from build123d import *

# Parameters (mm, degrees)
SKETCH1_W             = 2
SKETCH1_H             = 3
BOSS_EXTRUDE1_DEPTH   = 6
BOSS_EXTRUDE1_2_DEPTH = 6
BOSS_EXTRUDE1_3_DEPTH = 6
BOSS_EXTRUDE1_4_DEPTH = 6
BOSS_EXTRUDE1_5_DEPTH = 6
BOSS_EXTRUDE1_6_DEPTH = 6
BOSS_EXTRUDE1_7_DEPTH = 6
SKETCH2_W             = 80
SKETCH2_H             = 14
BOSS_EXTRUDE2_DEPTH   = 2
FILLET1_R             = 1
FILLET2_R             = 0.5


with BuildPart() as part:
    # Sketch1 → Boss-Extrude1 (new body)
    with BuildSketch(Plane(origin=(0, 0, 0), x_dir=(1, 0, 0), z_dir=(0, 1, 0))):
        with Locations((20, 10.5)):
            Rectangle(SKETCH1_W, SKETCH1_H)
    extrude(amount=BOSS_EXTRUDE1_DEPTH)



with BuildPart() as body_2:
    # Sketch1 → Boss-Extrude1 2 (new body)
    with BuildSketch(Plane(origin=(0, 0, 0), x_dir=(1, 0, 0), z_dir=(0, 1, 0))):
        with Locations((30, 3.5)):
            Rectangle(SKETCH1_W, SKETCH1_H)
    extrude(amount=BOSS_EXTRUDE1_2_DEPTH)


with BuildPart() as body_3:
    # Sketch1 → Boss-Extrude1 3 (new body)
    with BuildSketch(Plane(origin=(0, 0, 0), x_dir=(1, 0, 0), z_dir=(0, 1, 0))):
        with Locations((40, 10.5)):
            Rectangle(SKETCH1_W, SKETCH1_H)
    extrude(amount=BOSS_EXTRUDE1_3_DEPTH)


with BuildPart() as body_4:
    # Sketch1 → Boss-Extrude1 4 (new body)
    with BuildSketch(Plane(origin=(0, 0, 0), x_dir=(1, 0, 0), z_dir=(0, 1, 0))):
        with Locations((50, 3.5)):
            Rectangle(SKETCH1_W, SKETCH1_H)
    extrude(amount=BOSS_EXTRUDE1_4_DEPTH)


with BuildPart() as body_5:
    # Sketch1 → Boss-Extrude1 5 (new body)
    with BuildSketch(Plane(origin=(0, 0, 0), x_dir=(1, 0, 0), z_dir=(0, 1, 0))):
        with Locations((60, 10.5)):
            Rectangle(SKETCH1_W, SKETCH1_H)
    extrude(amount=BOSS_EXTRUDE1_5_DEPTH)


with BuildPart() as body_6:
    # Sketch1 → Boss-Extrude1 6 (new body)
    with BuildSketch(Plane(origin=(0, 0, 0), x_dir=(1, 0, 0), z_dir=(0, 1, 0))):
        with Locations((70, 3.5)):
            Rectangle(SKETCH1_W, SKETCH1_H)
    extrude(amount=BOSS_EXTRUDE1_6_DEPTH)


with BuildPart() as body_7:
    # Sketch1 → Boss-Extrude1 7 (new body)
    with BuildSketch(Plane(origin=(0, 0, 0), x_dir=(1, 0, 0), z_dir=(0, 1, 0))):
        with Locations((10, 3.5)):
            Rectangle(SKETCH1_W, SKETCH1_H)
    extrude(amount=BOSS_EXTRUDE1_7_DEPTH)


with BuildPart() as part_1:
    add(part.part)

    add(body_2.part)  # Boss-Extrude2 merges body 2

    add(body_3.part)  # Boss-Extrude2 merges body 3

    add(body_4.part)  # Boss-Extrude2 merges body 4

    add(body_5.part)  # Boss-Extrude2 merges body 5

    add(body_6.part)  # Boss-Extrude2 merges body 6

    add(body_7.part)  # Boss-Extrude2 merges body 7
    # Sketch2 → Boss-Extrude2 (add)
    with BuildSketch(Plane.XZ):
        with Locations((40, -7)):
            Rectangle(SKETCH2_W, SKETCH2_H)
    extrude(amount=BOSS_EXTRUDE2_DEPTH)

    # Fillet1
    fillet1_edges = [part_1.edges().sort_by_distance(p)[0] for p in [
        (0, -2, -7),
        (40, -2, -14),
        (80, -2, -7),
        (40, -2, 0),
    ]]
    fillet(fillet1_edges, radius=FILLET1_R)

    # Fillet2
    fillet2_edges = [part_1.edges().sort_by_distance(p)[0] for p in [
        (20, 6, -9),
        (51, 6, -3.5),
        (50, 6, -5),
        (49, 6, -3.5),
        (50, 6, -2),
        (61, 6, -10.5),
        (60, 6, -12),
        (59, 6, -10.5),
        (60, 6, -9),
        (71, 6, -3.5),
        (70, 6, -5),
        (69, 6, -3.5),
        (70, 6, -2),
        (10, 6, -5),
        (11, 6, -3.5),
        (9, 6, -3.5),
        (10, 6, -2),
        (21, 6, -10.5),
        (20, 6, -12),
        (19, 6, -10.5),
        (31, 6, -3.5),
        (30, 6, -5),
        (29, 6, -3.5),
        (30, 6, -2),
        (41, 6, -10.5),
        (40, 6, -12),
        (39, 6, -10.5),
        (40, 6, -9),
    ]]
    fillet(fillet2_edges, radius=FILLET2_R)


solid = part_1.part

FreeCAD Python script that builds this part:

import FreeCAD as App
import Part
import Sketcher

V = App.Vector


def edges_at(feature, points):
    """Names of the edges that pass closest to the given points."""
    edges = feature.Shape.Edges
    near = lambda p: min(range(len(edges)), key=lambda i: edges[i].distToShape(Part.Vertex(*p))[0])
    return sorted({f"Edge{near(p) + 1}" for p in points})

doc = App.newDocument("Part")
body = doc.addObject("PartDesign::Body", "Body")

# Sketch on XZ plane
sketch1 = body.newObject("Sketcher::SketchObject", "Sketch")
sketch1.AttachmentSupport = (doc.getObject("XZ_Plane"), [""])
sketch1.MapMode = "FlatFace"
sketch1.addGeometry([
    Part.LineSegment(V(19, -12, 0), V(19, -9, 0)),
    Part.LineSegment(V(19, -9, 0), V(21, -9, 0)),
    Part.LineSegment(V(21, -9, 0), V(21, -12, 0)),
    Part.LineSegment(V(21, -12, 0), V(19, -12, 0)),
], False)
sketch1.addConstraint([
    Sketcher.Constraint("Coincident", 0, 2, 1, 1),
    Sketcher.Constraint("Coincident", 1, 2, 2, 1),
    Sketcher.Constraint("Coincident", 2, 2, 3, 1),
    Sketcher.Constraint("Coincident", 3, 2, 0, 1),
    Sketcher.Constraint("Vertical", 0),
    Sketcher.Constraint("Horizontal", 1),
    Sketcher.Constraint("Vertical", 2),
    Sketcher.Constraint("Horizontal", 3),
    Sketcher.Constraint("DistanceX", 1, 1, 1, 2, 2.0),
    Sketcher.Constraint("DistanceY", 0, 1, 0, 2, 3.0),
    Sketcher.Constraint("DistanceX", -1, 1, 0, 2, 19.0),
    Sketcher.Constraint("DistanceY", 0, 2, -1, 1, 9.0),
])
pad1 = body.newObject("PartDesign::Pad", "Pad")
pad1.Profile = sketch1
pad1.Length = 6
pad1.Reversed = True
body2 = doc.addObject("PartDesign::Body", "Body001")

# Sketch on XZ plane
sketch2 = body2.newObject("Sketcher::SketchObject", "Sketch001")
sketch2.AttachmentSupport = (doc.getObject("XZ_Plane001"), [""])
sketch2.MapMode = "FlatFace"
sketch2.addGeometry([
    Part.LineSegment(V(29, -5, 0), V(29, -2, 0)),
    Part.LineSegment(V(29, -2, 0), V(31, -2, 0)),
    Part.LineSegment(V(31, -2, 0), V(31, -5, 0)),
    Part.LineSegment(V(31, -5, 0), V(29, -5, 0)),
], False)
sketch2.addConstraint([
    Sketcher.Constraint("Coincident", 0, 2, 1, 1),
    Sketcher.Constraint("Coincident", 1, 2, 2, 1),
    Sketcher.Constraint("Coincident", 2, 2, 3, 1),
    Sketcher.Constraint("Coincident", 3, 2, 0, 1),
    Sketcher.Constraint("Vertical", 0),
    Sketcher.Constraint("Horizontal", 1),
    Sketcher.Constraint("Vertical", 2),
    Sketcher.Constraint("Horizontal", 3),
    Sketcher.Constraint("DistanceX", 1, 1, 1, 2, 2.0),
    Sketcher.Constraint("DistanceY", 0, 1, 0, 2, 3.0),
    Sketcher.Constraint("DistanceX", -1, 1, 0, 2, 29.0),
    Sketcher.Constraint("DistanceY", 0, 2, -1, 1, 2.0),
])
pad2 = body2.newObject("PartDesign::Pad", "Pad001")
pad2.Profile = sketch2
pad2.Length = 6
pad2.Reversed = True
body3 = doc.addObject("PartDesign::Body", "Body002")

# Sketch on XZ plane
sketch3 = body3.newObject("Sketcher::SketchObject", "Sketch002")
sketch3.AttachmentSupport = (doc.getObject("XZ_Plane002"), [""])
sketch3.MapMode = "FlatFace"
sketch3.addGeometry([
    Part.LineSegment(V(39, -12, 0), V(39, -9, 0)),
    Part.LineSegment(V(39, -9, 0), V(41, -9, 0)),
    Part.LineSegment(V(41, -9, 0), V(41, -12, 0)),
    Part.LineSegment(V(41, -12, 0), V(39, -12, 0)),
], False)
sketch3.addConstraint([
    Sketcher.Constraint("Coincident", 0, 2, 1, 1),
    Sketcher.Constraint("Coincident", 1, 2, 2, 1),
    Sketcher.Constraint("Coincident", 2, 2, 3, 1),
    Sketcher.Constraint("Coincident", 3, 2, 0, 1),
    Sketcher.Constraint("Vertical", 0),
    Sketcher.Constraint("Horizontal", 1),
    Sketcher.Constraint("Vertical", 2),
    Sketcher.Constraint("Horizontal", 3),
    Sketcher.Constraint("DistanceX", 1, 1, 1, 2, 2.0),
    Sketcher.Constraint("DistanceY", 0, 1, 0, 2, 3.0),
    Sketcher.Constraint("DistanceX", -1, 1, 0, 2, 39.0),
    Sketcher.Constraint("DistanceY", 0, 2, -1, 1, 9.0),
])
pad3 = body3.newObject("PartDesign::Pad", "Pad002")
pad3.Profile = sketch3
pad3.Length = 6
pad3.Reversed = True
body4 = doc.addObject("PartDesign::Body", "Body003")

# Sketch on XZ plane
sketch4 = body4.newObject("Sketcher::SketchObject", "Sketch003")
sketch4.AttachmentSupport = (doc.getObject("XZ_Plane003"), [""])
sketch4.MapMode = "FlatFace"
sketch4.addGeometry([
    Part.LineSegment(V(49, -5, 0), V(49, -2, 0)),
    Part.LineSegment(V(49, -2, 0), V(51, -2, 0)),
    Part.LineSegment(V(51, -2, 0), V(51, -5, 0)),
    Part.LineSegment(V(51, -5, 0), V(49, -5, 0)),
], False)
sketch4.addConstraint([
    Sketcher.Constraint("Coincident", 0, 2, 1, 1),
    Sketcher.Constraint("Coincident", 1, 2, 2, 1),
    Sketcher.Constraint("Coincident", 2, 2, 3, 1),
    Sketcher.Constraint("Coincident", 3, 2, 0, 1),
    Sketcher.Constraint("Vertical", 0),
    Sketcher.Constraint("Horizontal", 1),
    Sketcher.Constraint("Vertical", 2),
    Sketcher.Constraint("Horizontal", 3),
    Sketcher.Constraint("DistanceX", 1, 1, 1, 2, 2.0),
    Sketcher.Constraint("DistanceY", 0, 1, 0, 2, 3.0),
    Sketcher.Constraint("DistanceX", -1, 1, 0, 2, 49.0),
    Sketcher.Constraint("DistanceY", 0, 2, -1, 1, 2.0),
])
pad4 = body4.newObject("PartDesign::Pad", "Pad003")
pad4.Profile = sketch4
pad4.Length = 6
pad4.Reversed = True
body5 = doc.addObject("PartDesign::Body", "Body004")

# Sketch on XZ plane
sketch5 = body5.newObject("Sketcher::SketchObject", "Sketch004")
sketch5.AttachmentSupport = (doc.getObject("XZ_Plane004"), [""])
sketch5.MapMode = "FlatFace"
sketch5.addGeometry([
    Part.LineSegment(V(59, -12, 0), V(59, -9, 0)),
    Part.LineSegment(V(59, -9, 0), V(61, -9, 0)),
    Part.LineSegment(V(61, -9, 0), V(61, -12, 0)),
    Part.LineSegment(V(61, -12, 0), V(59, -12, 0)),
], False)
sketch5.addConstraint([
    Sketcher.Constraint("Coincident", 0, 2, 1, 1),
    Sketcher.Constraint("Coincident", 1, 2, 2, 1),
    Sketcher.Constraint("Coincident", 2, 2, 3, 1),
    Sketcher.Constraint("Coincident", 3, 2, 0, 1),
    Sketcher.Constraint("Vertical", 0),
    Sketcher.Constraint("Horizontal", 1),
    Sketcher.Constraint("Vertical", 2),
    Sketcher.Constraint("Horizontal", 3),
    Sketcher.Constraint("DistanceX", 1, 1, 1, 2, 2.0),
    Sketcher.Constraint("DistanceY", 0, 1, 0, 2, 3.0),
    Sketcher.Constraint("DistanceX", -1, 1, 0, 2, 59.0),
    Sketcher.Constraint("DistanceY", 0, 2, -1, 1, 9.0),
])
pad5 = body5.newObject("PartDesign::Pad", "Pad004")
pad5.Profile = sketch5
pad5.Length = 6
pad5.Reversed = True
body6 = doc.addObject("PartDesign::Body", "Body005")

# Sketch on XZ plane
sketch6 = body6.newObject("Sketcher::SketchObject", "Sketch005")
sketch6.AttachmentSupport = (doc.getObject("XZ_Plane005"), [""])
sketch6.MapMode = "FlatFace"
sketch6.addGeometry([
    Part.LineSegment(V(69, -5, 0), V(69, -2, 0)),
    Part.LineSegment(V(69, -2, 0), V(71, -2, 0)),
    Part.LineSegment(V(71, -2, 0), V(71, -5, 0)),
    Part.LineSegment(V(71, -5, 0), V(69, -5, 0)),
], False)
sketch6.addConstraint([
    Sketcher.Constraint("Coincident", 0, 2, 1, 1),
    Sketcher.Constraint("Coincident", 1, 2, 2, 1),
    Sketcher.Constraint("Coincident", 2, 2, 3, 1),
    Sketcher.Constraint("Coincident", 3, 2, 0, 1),
    Sketcher.Constraint("Vertical", 0),
    Sketcher.Constraint("Horizontal", 1),
    Sketcher.Constraint("Vertical", 2),
    Sketcher.Constraint("Horizontal", 3),
    Sketcher.Constraint("DistanceX", 1, 1, 1, 2, 2.0),
    Sketcher.Constraint("DistanceY", 0, 1, 0, 2, 3.0),
    Sketcher.Constraint("DistanceX", -1, 1, 0, 2, 69.0),
    Sketcher.Constraint("DistanceY", 0, 2, -1, 1, 2.0),
])
pad6 = body6.newObject("PartDesign::Pad", "Pad005")
pad6.Profile = sketch6
pad6.Length = 6
pad6.Reversed = True
body7 = doc.addObject("PartDesign::Body", "Body006")

# Sketch on XZ plane
sketch7 = body7.newObject("Sketcher::SketchObject", "Sketch006")
sketch7.AttachmentSupport = (doc.getObject("XZ_Plane006"), [""])
sketch7.MapMode = "FlatFace"
sketch7.addGeometry([
    Part.LineSegment(V(9, -5, 0), V(9, -2, 0)),
    Part.LineSegment(V(9, -2, 0), V(11, -2, 0)),
    Part.LineSegment(V(11, -2, 0), V(11, -5, 0)),
    Part.LineSegment(V(11, -5, 0), V(9, -5, 0)),
], False)
sketch7.addConstraint([
    Sketcher.Constraint("Coincident", 0, 2, 1, 1),
    Sketcher.Constraint("Coincident", 1, 2, 2, 1),
    Sketcher.Constraint("Coincident", 2, 2, 3, 1),
    Sketcher.Constraint("Coincident", 3, 2, 0, 1),
    Sketcher.Constraint("Vertical", 0),
    Sketcher.Constraint("Horizontal", 1),
    Sketcher.Constraint("Vertical", 2),
    Sketcher.Constraint("Horizontal", 3),
    Sketcher.Constraint("DistanceX", 1, 1, 1, 2, 2.0),
    Sketcher.Constraint("DistanceY", 0, 1, 0, 2, 3.0),
    Sketcher.Constraint("DistanceX", -1, 1, 0, 2, 9.0),
    Sketcher.Constraint("DistanceY", 0, 2, -1, 1, 2.0),
])
pad7 = body7.newObject("PartDesign::Pad", "Pad006")
pad7.Profile = sketch7
pad7.Length = 6
pad7.Reversed = True
body.AllowCompound = True
doc.recompute()

boolean = body.newObject("PartDesign::Boolean", "Boolean")
boolean.Type = "Fuse"
boolean.addObjects([body2])
doc.recompute()

boolean2 = body.newObject("PartDesign::Boolean", "Boolean001")
boolean2.Type = "Fuse"
boolean2.addObjects([body3])
doc.recompute()

boolean3 = body.newObject("PartDesign::Boolean", "Boolean002")
boolean3.Type = "Fuse"
boolean3.addObjects([body4])
doc.recompute()

boolean4 = body.newObject("PartDesign::Boolean", "Boolean003")
boolean4.Type = "Fuse"
boolean4.addObjects([body5])
doc.recompute()

boolean5 = body.newObject("PartDesign::Boolean", "Boolean004")
boolean5.Type = "Fuse"
boolean5.addObjects([body6])
doc.recompute()

boolean6 = body.newObject("PartDesign::Boolean", "Boolean005")
boolean6.Type = "Fuse"
boolean6.addObjects([body7])

# Sketch on XZ plane
sketch8 = body.newObject("Sketcher::SketchObject", "Sketch007")
sketch8.AttachmentSupport = (doc.getObject("XZ_Plane"), [""])
sketch8.MapMode = "FlatFace"
sketch8.addGeometry([
    Part.LineSegment(V(0, 0, 0), V(0, -14, 0)),
    Part.LineSegment(V(0, -14, 0), V(80, -14, 0)),
    Part.LineSegment(V(80, -14, 0), V(80, 0, 0)),
    Part.LineSegment(V(80, 0, 0), V(0, 0, 0)),
], False)
sketch8.addConstraint([
    Sketcher.Constraint("Coincident", 0, 2, 1, 1),
    Sketcher.Constraint("Coincident", 1, 2, 2, 1),
    Sketcher.Constraint("Coincident", 2, 2, 3, 1),
    Sketcher.Constraint("Coincident", 3, 2, 0, 1),
    Sketcher.Constraint("Vertical", 0),
    Sketcher.Constraint("Horizontal", 1),
    Sketcher.Constraint("Vertical", 2),
    Sketcher.Constraint("Horizontal", 3),
    Sketcher.Constraint("Coincident", 3, 2, -1, 1),
    Sketcher.Constraint("DistanceX", 1, 1, 1, 2, 80.0),
    Sketcher.Constraint("DistanceY", 0, 2, 0, 1, 14.0),
])
pad8 = body.newObject("PartDesign::Pad", "Pad007")
pad8.Profile = sketch8
pad8.Length = 2
doc.recompute()

fillet = body.newObject("PartDesign::Fillet", "Fillet")
fillet.Base = (pad8, edges_at(pad8, [
    (0, -2, -7),
    (40, -2, -14),
    (80, -2, -7),
    (40, -2, 0),
]))
fillet.Radius = 1
doc.recompute()

fillet2 = body.newObject("PartDesign::Fillet", "Fillet001")
fillet2.Base = (fillet, edges_at(fillet, [
    (20, 6, -9),
    (51, 6, -3.5),
    (50, 6, -5),
    (49, 6, -3.5),
    (50, 6, -2),
    (61, 6, -10.5),
    (60, 6, -12),
    (59, 6, -10.5),
    (60, 6, -9),
    (71, 6, -3.5),
    (70, 6, -5),
    (69, 6, -3.5),
    (70, 6, -2),
    (10, 6, -5),
    (11, 6, -3.5),
    (9, 6, -3.5),
    (10, 6, -2),
    (21, 6, -10.5),
    (20, 6, -12),
    (19, 6, -10.5),
    (31, 6, -3.5),
    (30, 6, -5),
    (29, 6, -3.5),
    (30, 6, -2),
    (41, 6, -10.5),
    (40, 6, -12),
    (39, 6, -10.5),
    (40, 6, -9),
]))
fillet2.Radius = 0.5

doc.recompute()
